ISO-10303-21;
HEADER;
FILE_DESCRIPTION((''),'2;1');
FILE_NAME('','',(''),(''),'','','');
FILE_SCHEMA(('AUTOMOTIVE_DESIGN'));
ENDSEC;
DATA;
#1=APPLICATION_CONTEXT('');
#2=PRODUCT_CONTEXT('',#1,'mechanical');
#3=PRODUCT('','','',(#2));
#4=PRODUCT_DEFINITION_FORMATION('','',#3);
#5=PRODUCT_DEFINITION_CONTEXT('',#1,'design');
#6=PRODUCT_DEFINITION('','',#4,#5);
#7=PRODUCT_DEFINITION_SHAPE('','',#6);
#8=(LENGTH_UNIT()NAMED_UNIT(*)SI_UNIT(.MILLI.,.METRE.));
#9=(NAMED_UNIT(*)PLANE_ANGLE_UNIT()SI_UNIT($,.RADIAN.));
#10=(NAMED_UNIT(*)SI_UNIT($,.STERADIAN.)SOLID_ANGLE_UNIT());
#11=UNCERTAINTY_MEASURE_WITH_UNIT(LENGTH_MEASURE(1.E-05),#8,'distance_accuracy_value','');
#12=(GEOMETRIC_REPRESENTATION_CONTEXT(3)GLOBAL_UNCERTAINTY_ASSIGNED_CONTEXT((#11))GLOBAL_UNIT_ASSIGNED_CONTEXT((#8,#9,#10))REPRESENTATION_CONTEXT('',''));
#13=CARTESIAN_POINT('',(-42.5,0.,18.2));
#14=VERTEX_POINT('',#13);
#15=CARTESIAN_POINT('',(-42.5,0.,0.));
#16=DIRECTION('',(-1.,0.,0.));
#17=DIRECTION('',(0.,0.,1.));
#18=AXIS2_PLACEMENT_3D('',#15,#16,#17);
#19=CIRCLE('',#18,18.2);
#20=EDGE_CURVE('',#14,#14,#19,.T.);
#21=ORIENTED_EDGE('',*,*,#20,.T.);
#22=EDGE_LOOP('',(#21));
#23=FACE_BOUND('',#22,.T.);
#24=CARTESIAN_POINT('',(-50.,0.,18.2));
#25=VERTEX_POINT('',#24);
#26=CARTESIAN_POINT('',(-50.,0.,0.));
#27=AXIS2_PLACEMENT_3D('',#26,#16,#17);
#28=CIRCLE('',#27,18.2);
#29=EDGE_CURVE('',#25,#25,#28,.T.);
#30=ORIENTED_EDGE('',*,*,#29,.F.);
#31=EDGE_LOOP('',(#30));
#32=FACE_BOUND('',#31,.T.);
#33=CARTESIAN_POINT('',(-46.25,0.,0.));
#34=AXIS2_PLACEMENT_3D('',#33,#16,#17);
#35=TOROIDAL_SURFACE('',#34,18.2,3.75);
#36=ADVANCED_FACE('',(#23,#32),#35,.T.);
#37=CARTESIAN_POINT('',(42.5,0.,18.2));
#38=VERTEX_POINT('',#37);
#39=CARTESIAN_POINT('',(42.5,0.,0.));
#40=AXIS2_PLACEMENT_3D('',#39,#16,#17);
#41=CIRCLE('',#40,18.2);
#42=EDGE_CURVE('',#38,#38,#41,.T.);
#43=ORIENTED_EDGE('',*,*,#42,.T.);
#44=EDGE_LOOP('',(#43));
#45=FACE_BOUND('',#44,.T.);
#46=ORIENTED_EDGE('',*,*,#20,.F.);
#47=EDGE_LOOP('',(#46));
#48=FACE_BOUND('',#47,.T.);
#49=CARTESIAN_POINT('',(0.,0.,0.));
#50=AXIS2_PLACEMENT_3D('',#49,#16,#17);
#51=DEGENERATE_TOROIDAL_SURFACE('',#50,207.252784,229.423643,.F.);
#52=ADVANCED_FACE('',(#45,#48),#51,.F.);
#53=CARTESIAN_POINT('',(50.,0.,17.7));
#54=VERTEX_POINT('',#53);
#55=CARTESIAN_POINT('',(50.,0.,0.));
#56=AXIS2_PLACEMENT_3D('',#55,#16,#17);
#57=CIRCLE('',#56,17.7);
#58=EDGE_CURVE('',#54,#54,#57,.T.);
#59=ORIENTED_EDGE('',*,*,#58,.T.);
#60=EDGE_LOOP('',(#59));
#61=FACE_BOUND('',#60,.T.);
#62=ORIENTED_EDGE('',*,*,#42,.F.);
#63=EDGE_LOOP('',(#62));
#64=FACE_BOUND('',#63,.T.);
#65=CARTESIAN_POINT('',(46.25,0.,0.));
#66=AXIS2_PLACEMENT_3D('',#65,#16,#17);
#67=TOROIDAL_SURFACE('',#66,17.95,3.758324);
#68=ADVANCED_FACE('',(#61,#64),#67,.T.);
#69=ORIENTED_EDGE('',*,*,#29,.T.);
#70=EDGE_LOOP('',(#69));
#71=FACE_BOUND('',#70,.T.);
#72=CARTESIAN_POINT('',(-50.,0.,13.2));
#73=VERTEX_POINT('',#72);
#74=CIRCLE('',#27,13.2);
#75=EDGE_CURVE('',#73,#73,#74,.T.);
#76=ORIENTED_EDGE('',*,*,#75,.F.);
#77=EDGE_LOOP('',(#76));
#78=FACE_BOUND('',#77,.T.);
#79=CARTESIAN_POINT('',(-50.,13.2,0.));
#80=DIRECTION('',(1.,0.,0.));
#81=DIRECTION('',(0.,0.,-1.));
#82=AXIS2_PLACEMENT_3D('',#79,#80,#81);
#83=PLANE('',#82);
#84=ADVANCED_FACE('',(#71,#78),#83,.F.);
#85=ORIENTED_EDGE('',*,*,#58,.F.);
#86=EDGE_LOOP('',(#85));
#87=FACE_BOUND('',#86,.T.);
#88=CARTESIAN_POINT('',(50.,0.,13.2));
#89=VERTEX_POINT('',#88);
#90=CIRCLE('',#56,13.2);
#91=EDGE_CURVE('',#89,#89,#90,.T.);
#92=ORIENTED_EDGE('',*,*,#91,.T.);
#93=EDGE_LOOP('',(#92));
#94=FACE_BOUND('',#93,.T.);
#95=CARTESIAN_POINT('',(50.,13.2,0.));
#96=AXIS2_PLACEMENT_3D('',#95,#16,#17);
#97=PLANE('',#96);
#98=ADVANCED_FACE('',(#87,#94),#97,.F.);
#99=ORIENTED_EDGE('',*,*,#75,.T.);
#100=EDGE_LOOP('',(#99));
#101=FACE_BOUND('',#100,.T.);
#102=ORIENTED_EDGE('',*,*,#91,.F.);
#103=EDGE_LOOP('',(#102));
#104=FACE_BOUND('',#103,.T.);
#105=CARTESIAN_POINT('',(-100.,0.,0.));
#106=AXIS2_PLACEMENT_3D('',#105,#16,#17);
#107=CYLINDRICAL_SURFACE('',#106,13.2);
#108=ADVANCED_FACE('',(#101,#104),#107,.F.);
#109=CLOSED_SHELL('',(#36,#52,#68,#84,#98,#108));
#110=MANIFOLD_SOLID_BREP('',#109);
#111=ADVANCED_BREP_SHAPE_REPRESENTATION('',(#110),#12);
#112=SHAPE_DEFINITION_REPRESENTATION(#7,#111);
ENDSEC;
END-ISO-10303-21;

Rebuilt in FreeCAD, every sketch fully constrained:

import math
import FreeCAD as App
import Part
import Sketcher

V = App.Vector
Q = App.Units.Quantity

doc = App.newDocument("Part")
body = doc.addObject("PartDesign::Body", "Body")

sketch1 = doc.addObject("Sketcher::SketchObject", "Sketch")
body.addObject(sketch1)
sketch1.AttachmentSupport = (doc.XY_Plane, [""])
sketch1.MapMode = "FlatFace"
sketch1.addGeometry(Part.LineSegment(V(-50, 13.2, 0), V(50, 13.2, 0)), False)
sketch1.addGeometry(Part.LineSegment(V(50, 13.2, 0), V(50, 17.7, 0)), False)
sketch1.addGeometry(Part.ArcOfCircle(Part.Circle(V(46.2, 17.9, 0), V(0, 0, 1), 3.8), math.radians(-4), math.radians(176)), False)
sketch1.addGeometry(Part.ArcOfCircle(Part.Circle(V(0, -207.3, 0), V(0, 0, 1), 229.4), math.radians(79), math.radians(101)), False)
sketch1.addGeometry(Part.ArcOfCircle(Part.Circle(V(-46.2, 18.2, 0), V(0, 0, 1), 3.8), math.radians(0), math.radians(180)), False)
sketch1.addGeometry(Part.LineSegment(V(-50, 18.2, 0), V(-50, 13.2, 0)), False)
sketch1.addConstraint(Sketcher.Constraint("Coincident", 0, 2, 1, 1))
sketch1.addConstraint(Sketcher.Constraint("Coincident", 1, 2, 2, 1))
sketch1.addConstraint(Sketcher.Constraint("Coincident", 2, 2, 3, 1))
sketch1.addConstraint(Sketcher.Constraint("Coincident", 3, 2, 4, 1))
sketch1.addConstraint(Sketcher.Constraint("Tangent", 4, 2, 5, 1))
sketch1.addConstraint(Sketcher.Constraint("Coincident", 5, 2, 0, 1))
sketch1.addConstraint(Sketcher.Constraint("Horizontal", 0))
sketch1.addConstraint(Sketcher.Constraint("Vertical", 1))
sketch1.addConstraint(Sketcher.Constraint("Vertical", 5))
sketch1.addConstraint(Sketcher.Constraint("Symmetric", 2, 2, 3, 2, -2))
sketch1.addConstraint(Sketcher.Constraint("Horizontal", 4, 3, 2, 2))
sketch1.addConstraint(Sketcher.Constraint("DistanceX", 0, 1, 0, 2, Q("100 mm")))
sketch1.addConstraint(Sketcher.Constraint("DistanceY", 5, 2, 5, 1, Q("5 mm")))
sketch1.addConstraint(Sketcher.Constraint("Radius", 4, Q("3.75 mm")))
sketch1.addConstraint(Sketcher.Constraint("DistanceY", 1, 1, 1, 2, Q("4.5 mm")))
sketch1.addConstraint(Sketcher.Constraint("DistanceX", -1, 1, 0, 2, Q("50 mm")))
sketch1.addConstraint(Sketcher.Constraint("DistanceY", -1, 1, 4, 3, Q("18.2 mm")))
sketch1.addConstraint(Sketcher.Constraint("DistanceX", 4, 3, 2, 3, Q("92.5 mm")))
sketch1.addConstraint(Sketcher.Constraint("Radius", 3, Q("229.423643 mm")))
revolution = doc.addObject("PartDesign::Revolution", "Revolution")
body.addObject(revolution)
revolution.Profile = sketch1
revolution.ReferenceAxis = (sketch1, ["H_Axis"])
revolution.Angle = 360

doc.recompute()
